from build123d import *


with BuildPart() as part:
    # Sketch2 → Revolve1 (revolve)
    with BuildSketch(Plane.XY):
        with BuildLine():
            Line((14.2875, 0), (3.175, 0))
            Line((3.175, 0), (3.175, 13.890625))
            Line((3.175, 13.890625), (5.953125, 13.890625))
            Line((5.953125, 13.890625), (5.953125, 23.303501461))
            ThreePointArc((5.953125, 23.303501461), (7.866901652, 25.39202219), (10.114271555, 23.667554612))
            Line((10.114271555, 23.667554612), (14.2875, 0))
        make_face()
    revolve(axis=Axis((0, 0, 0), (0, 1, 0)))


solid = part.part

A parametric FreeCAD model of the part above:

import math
import FreeCAD as App
import Part
import Sketcher

V = App.Vector
Q = App.Units.Quantity

doc = App.newDocument("Part")
params = doc.addObject("Spreadsheet::Sheet", "Params")
for row, (alias, value) in enumerate([
    ("sketch1_width", "0.4375 in"),
    ("sketch1_width2", "0.109375 in"),
    ("sketch1_height", "0.546875 in"),
    ("revolution_angle", "360 deg"),
], start=1):
    params.set(f"A{row}", alias)
    params.set(f"B{row}", "=" + value)
    params.setAlias(f"B{row}", alias)

body = doc.addObject("PartDesign::Body", "Body")

sketch1 = body.newObject("Sketcher::SketchObject", "Sketch")
sketch1.AttachmentSupport = (doc.getObject("XY_Plane"), [""])
sketch1.MapMode = "FlatFace"
sketch1.addGeometry([
    Part.LineSegment(V(3.2, 0, 0), V(14.3, 0, 0)),
    Part.LineSegment(V(14.3, 0, 0), V(10.1, 23.7, 0)),
    Part.ArcOfCircle(Part.Circle(V(8, 23.3, 0), V(0, 0, 1), 2.1), math.radians(10), math.radians(180)),
    Part.LineSegment(V(6, 23.3, 0), V(6, 13.9, 0)),
    Part.LineSegment(V(6, 13.9, 0), V(3.2, 13.9, 0)),
    Part.LineSegment(V(3.2, 13.9, 0), V(3.2, 0, 0)),
], False)
sketch1.addConstraint([
    Sketcher.Constraint("Coincident", 0, 2, 1, 1),
    Sketcher.Constraint("Tangent", 1, 2, 2, 1),
    Sketcher.Constraint("Tangent", 2, 2, 3, 1),
    Sketcher.Constraint("Coincident", 3, 2, 4, 1),
    Sketcher.Constraint("Coincident", 4, 2, 5, 1),
    Sketcher.Constraint("Coincident", 5, 2, 0, 1),
    Sketcher.Constraint("Horizontal", 0),
    Sketcher.Constraint("Vertical", 3),
    Sketcher.Constraint("Horizontal", 4),
    Sketcher.Constraint("Vertical", 5),
    Sketcher.Constraint("PointOnObject", 0, 2, -1),
    Sketcher.Constraint("Angle", 1, Q("100 deg")),
    Sketcher.Constraint("DistanceX", 0, 1, 0, 2, Q("0.4375 in")),
    Sketcher.Constraint("DistanceX", 4, 2, 4, 1, Q("0.109375 in")),
    Sketcher.Constraint("DistanceY", 5, 2, 5, 1, Q("0.546875 in")),
    Sketcher.Constraint("Radius", 2, 2.096499),
    Sketcher.Constraint("DistanceX", -1, 1, 0, 2, Q("0.5625 in")),
])
sketch1.setExpression("Constraints[12]", "Params.sketch1_width")
sketch1.setExpression("Constraints[13]", "Params.sketch1_width2")
sketch1.setExpression("Constraints[14]", "Params.sketch1_height")
revolution = body.newObject("PartDesign::Revolution", "Revolution")
revolution.Profile = sketch1
revolution.ReferenceAxis = (sketch1, ["V_Axis"])
revolution.setExpression("Angle", "Params.revolution_angle")

doc.recompute()
